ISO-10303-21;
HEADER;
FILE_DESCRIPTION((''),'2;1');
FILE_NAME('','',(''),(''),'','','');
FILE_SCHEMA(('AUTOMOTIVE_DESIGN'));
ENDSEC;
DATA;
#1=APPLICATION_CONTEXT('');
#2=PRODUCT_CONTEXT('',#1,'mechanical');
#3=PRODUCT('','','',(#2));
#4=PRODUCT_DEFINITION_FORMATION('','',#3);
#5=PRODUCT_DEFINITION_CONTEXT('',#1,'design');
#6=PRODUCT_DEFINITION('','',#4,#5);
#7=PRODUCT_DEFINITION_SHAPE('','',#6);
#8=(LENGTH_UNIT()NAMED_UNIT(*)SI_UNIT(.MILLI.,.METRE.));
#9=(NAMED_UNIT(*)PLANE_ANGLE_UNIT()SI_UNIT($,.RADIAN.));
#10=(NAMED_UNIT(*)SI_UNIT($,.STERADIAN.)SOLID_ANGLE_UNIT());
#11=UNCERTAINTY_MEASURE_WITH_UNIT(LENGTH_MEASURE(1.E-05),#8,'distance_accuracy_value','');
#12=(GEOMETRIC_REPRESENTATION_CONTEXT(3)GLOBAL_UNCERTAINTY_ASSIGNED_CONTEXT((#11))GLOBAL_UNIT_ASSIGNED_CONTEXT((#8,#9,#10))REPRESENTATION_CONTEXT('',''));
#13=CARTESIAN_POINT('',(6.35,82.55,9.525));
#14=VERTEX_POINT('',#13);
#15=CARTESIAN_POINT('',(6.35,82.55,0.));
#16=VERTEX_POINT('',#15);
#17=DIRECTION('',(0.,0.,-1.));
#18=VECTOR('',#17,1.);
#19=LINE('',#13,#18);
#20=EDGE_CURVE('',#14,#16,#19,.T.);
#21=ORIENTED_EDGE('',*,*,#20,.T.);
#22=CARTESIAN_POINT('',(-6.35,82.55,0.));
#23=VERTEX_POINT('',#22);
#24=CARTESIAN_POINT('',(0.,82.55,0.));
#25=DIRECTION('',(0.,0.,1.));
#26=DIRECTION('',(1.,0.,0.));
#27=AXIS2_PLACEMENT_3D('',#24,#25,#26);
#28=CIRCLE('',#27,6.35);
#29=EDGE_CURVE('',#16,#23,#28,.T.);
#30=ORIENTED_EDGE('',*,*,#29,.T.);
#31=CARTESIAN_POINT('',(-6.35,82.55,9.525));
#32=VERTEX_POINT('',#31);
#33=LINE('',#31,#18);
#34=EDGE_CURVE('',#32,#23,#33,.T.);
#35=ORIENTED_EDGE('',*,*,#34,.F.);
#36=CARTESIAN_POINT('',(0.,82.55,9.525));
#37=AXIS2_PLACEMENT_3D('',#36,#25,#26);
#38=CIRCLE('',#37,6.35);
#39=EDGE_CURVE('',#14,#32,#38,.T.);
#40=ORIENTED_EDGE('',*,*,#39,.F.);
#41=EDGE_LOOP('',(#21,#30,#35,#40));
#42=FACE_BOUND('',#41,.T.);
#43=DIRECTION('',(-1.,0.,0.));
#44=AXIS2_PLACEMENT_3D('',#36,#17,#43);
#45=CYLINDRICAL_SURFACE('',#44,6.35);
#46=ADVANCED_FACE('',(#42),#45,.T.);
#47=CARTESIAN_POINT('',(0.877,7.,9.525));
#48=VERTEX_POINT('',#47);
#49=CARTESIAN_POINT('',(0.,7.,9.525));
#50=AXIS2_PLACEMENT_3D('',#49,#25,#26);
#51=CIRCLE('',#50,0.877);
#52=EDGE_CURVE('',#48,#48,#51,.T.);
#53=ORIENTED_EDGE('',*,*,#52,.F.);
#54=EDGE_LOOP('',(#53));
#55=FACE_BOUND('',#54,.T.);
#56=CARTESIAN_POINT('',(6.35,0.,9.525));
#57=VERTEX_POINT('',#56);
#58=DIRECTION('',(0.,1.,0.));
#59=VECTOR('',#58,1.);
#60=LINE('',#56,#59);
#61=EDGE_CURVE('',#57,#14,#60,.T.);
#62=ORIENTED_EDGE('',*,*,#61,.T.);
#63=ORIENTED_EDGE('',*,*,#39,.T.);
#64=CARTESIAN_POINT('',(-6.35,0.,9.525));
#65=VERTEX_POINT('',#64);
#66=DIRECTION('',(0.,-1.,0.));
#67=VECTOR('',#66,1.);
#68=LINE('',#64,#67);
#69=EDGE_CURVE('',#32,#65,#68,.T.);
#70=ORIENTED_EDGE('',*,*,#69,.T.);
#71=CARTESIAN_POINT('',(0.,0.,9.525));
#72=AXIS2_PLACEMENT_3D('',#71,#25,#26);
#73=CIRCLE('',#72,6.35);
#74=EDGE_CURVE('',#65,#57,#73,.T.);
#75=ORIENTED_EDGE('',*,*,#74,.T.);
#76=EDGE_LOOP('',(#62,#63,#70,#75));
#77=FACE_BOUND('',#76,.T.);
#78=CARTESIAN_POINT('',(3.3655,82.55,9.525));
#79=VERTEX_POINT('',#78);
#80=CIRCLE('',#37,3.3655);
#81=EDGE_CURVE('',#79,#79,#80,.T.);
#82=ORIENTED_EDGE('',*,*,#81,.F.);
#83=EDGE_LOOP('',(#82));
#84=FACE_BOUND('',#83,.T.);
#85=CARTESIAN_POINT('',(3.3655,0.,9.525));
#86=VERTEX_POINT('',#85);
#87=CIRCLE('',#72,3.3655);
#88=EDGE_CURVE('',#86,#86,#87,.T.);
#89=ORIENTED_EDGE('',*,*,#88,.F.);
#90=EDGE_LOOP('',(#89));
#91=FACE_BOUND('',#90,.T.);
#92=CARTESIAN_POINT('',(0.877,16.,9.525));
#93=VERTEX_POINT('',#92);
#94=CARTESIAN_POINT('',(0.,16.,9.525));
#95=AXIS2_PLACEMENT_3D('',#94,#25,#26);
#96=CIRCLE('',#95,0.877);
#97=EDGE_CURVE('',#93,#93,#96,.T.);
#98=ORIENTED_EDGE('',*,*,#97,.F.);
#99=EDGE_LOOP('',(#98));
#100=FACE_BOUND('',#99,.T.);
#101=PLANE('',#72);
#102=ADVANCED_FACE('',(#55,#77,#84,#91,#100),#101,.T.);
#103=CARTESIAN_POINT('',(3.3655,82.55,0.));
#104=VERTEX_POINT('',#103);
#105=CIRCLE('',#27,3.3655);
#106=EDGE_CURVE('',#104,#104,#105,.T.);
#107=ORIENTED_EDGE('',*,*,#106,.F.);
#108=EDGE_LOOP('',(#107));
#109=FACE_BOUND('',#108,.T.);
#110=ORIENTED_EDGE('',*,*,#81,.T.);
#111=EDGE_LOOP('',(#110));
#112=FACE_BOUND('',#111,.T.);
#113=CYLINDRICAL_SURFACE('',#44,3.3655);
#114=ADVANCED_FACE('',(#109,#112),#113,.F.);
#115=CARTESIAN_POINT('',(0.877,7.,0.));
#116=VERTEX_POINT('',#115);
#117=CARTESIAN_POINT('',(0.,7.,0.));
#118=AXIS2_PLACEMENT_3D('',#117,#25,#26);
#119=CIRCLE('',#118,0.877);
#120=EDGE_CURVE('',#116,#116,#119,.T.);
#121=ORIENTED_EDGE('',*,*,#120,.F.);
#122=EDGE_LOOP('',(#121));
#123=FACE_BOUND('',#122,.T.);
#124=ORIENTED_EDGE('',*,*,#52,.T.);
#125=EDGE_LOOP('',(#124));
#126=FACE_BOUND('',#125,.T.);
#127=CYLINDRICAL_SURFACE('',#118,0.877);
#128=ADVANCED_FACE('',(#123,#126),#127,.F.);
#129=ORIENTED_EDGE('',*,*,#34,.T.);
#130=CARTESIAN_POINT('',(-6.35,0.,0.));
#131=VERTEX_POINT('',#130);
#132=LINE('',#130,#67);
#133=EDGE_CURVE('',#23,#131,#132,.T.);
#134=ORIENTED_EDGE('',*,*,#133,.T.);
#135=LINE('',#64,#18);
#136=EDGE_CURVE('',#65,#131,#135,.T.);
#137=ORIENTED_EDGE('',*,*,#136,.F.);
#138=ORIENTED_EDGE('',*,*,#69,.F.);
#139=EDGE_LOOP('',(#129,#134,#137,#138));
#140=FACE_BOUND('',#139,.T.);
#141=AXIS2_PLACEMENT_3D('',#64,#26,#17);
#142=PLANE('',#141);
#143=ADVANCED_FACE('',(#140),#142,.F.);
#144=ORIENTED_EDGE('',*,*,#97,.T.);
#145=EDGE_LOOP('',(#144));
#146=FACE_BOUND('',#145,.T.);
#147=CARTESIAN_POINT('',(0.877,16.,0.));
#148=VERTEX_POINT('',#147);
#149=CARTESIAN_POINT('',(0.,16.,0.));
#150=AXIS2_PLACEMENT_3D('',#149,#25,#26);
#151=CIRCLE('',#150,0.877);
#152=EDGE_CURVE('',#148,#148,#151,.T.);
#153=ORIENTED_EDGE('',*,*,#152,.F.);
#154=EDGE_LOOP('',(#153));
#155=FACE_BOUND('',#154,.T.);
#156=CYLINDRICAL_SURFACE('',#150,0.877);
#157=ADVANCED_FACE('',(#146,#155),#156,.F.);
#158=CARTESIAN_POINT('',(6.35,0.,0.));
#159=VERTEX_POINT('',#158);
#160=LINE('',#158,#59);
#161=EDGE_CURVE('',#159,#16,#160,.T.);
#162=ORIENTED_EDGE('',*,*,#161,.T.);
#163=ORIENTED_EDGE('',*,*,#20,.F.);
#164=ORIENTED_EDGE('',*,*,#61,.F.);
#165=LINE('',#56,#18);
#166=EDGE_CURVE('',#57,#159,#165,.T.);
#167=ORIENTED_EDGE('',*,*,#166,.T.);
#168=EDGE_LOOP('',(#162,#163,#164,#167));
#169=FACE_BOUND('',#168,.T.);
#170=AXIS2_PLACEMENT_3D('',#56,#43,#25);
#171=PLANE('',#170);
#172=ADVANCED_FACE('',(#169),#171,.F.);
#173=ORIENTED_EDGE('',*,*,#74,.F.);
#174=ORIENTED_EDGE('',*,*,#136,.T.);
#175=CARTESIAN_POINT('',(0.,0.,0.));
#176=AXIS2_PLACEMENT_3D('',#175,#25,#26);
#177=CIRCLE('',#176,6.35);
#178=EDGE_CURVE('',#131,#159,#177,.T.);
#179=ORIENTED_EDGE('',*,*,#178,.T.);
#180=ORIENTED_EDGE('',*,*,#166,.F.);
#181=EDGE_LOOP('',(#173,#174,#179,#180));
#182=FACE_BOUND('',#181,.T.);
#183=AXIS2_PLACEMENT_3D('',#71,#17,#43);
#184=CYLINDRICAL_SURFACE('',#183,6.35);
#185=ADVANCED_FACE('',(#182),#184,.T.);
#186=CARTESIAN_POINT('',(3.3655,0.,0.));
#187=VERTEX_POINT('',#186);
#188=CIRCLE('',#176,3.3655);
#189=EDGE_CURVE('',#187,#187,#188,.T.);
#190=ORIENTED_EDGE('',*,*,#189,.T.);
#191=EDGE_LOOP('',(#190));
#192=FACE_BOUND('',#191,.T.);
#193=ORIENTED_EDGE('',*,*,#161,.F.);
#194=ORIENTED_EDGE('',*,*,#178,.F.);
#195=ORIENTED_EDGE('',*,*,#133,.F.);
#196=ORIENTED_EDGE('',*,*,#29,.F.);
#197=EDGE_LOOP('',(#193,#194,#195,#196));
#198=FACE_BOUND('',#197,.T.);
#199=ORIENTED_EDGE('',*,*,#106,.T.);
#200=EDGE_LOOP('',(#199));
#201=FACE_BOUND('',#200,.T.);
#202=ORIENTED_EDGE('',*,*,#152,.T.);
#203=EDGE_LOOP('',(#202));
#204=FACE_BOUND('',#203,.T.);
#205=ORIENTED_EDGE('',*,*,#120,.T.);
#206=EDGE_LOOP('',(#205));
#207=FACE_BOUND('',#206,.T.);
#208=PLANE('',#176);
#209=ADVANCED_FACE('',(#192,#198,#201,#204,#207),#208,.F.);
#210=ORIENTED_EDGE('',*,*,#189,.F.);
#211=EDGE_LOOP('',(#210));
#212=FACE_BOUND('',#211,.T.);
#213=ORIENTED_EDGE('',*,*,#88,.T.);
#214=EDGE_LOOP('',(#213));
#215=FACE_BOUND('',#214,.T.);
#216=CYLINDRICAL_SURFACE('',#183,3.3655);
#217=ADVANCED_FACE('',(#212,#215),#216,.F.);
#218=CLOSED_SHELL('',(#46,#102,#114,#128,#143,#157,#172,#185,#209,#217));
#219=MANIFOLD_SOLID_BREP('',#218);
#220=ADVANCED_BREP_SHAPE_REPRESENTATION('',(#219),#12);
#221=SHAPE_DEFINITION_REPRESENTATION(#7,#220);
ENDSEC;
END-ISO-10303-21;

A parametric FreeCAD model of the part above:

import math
import FreeCAD as App
import Part
import Sketcher

V = App.Vector
Q = App.Units.Quantity

doc = App.newDocument("Part")
body = doc.addObject("PartDesign::Body", "Body")

# Sketch on XY plane
sketch1 = body.newObject("Sketcher::SketchObject", "Sketch")
sketch1.AttachmentSupport = (doc.getObject("XY_Plane"), [""])
sketch1.MapMode = "FlatFace"
sketch1.addGeometry([
    Part.LineSegment(V(-6.35, 82.55, 0), V(-6.35, 0, 0)),  # 0
    Part.ArcOfCircle(Part.Circle(V(0, 0, 0), V(0, 0, 1), 6.35), math.radians(180), math.radians(360)),  # 1
    Part.LineSegment(V(6.35, 0, 0), V(6.35, 82.55, 0)),  # 2
    Part.ArcOfCircle(Part.Circle(V(0, 82.55, 0), V(0, 0, 1), 6.35), math.radians(0), math.radians(180)),  # 3
    Part.Circle(V(0, 0, 0), V(0, 0, 1), 3.3655),  # 4
    Part.Circle(V(0, 82.55, 0), V(0, 0, 1), 3.3655),  # 5
], False)
sketch1.addConstraint([
    Sketcher.Constraint("Tangent", 0, 2, 1, 1),
    Sketcher.Constraint("Tangent", 1, 2, 2, 1),
    Sketcher.Constraint("Tangent", 2, 2, 3, 1),
    Sketcher.Constraint("Tangent", 3, 2, 0, 1),
    Sketcher.Constraint("Vertical", 0),
    Sketcher.Constraint("Vertical", 2),
    Sketcher.Constraint("Coincident", 1, 3, -1, 1),
    Sketcher.Constraint("Coincident", 4, 3, -1, 1),
    Sketcher.Constraint("Coincident", 5, 3, 3, 3),
    Sketcher.Constraint("Equal", 4, 5),
    Sketcher.Constraint("Radius", 1, Q("0.25 in")),
    Sketcher.Constraint("Diameter", 4, Q("0.265 in")),
    Sketcher.Constraint("DistanceY", 0, 2, 0, 1, Q("3.25 in")),
])
pad1 = body.newObject("PartDesign::Pad", "Pad")
pad1.Profile = sketch1
pad1.Length = Q("0.375 in")

# Sketch on XY plane
sketch2 = body.newObject("Sketcher::SketchObject", "Sketch001")
sketch2.AttachmentSupport = (doc.getObject("XY_Plane"), [""])
sketch2.MapMode = "FlatFace"
sketch2.AttachmentOffset = App.Placement(V(0, 0, 0.375 * 25.4), App.Rotation())
sketch2.addGeometry([
    Part.Circle(V(0, 7, 0), V(0, 0, 1), 0.877),
    Part.Circle(V(0, 16, 0), V(0, 0, 1), 0.877),
], False)
sketch2.addConstraint([
    Sketcher.Constraint("Equal", 0, 1),
    Sketcher.Constraint("PointOnObject", 0, 3, -2),
    Sketcher.Constraint("PointOnObject", 1, 3, -2),
    Sketcher.Constraint("Diameter", 0, Q("1.754 mm")),
    Sketcher.Constraint("DistanceY", -1, 1, 0, 3, Q("7 mm")),
    Sketcher.Constraint("DistanceY", -1, 1, 1, 3, Q("16 mm")),
])
pocket1 = body.newObject("PartDesign::Pocket", "Pocket")
pocket1.Profile = sketch2
pocket1.Type = "ThroughAll"

doc.recompute()
